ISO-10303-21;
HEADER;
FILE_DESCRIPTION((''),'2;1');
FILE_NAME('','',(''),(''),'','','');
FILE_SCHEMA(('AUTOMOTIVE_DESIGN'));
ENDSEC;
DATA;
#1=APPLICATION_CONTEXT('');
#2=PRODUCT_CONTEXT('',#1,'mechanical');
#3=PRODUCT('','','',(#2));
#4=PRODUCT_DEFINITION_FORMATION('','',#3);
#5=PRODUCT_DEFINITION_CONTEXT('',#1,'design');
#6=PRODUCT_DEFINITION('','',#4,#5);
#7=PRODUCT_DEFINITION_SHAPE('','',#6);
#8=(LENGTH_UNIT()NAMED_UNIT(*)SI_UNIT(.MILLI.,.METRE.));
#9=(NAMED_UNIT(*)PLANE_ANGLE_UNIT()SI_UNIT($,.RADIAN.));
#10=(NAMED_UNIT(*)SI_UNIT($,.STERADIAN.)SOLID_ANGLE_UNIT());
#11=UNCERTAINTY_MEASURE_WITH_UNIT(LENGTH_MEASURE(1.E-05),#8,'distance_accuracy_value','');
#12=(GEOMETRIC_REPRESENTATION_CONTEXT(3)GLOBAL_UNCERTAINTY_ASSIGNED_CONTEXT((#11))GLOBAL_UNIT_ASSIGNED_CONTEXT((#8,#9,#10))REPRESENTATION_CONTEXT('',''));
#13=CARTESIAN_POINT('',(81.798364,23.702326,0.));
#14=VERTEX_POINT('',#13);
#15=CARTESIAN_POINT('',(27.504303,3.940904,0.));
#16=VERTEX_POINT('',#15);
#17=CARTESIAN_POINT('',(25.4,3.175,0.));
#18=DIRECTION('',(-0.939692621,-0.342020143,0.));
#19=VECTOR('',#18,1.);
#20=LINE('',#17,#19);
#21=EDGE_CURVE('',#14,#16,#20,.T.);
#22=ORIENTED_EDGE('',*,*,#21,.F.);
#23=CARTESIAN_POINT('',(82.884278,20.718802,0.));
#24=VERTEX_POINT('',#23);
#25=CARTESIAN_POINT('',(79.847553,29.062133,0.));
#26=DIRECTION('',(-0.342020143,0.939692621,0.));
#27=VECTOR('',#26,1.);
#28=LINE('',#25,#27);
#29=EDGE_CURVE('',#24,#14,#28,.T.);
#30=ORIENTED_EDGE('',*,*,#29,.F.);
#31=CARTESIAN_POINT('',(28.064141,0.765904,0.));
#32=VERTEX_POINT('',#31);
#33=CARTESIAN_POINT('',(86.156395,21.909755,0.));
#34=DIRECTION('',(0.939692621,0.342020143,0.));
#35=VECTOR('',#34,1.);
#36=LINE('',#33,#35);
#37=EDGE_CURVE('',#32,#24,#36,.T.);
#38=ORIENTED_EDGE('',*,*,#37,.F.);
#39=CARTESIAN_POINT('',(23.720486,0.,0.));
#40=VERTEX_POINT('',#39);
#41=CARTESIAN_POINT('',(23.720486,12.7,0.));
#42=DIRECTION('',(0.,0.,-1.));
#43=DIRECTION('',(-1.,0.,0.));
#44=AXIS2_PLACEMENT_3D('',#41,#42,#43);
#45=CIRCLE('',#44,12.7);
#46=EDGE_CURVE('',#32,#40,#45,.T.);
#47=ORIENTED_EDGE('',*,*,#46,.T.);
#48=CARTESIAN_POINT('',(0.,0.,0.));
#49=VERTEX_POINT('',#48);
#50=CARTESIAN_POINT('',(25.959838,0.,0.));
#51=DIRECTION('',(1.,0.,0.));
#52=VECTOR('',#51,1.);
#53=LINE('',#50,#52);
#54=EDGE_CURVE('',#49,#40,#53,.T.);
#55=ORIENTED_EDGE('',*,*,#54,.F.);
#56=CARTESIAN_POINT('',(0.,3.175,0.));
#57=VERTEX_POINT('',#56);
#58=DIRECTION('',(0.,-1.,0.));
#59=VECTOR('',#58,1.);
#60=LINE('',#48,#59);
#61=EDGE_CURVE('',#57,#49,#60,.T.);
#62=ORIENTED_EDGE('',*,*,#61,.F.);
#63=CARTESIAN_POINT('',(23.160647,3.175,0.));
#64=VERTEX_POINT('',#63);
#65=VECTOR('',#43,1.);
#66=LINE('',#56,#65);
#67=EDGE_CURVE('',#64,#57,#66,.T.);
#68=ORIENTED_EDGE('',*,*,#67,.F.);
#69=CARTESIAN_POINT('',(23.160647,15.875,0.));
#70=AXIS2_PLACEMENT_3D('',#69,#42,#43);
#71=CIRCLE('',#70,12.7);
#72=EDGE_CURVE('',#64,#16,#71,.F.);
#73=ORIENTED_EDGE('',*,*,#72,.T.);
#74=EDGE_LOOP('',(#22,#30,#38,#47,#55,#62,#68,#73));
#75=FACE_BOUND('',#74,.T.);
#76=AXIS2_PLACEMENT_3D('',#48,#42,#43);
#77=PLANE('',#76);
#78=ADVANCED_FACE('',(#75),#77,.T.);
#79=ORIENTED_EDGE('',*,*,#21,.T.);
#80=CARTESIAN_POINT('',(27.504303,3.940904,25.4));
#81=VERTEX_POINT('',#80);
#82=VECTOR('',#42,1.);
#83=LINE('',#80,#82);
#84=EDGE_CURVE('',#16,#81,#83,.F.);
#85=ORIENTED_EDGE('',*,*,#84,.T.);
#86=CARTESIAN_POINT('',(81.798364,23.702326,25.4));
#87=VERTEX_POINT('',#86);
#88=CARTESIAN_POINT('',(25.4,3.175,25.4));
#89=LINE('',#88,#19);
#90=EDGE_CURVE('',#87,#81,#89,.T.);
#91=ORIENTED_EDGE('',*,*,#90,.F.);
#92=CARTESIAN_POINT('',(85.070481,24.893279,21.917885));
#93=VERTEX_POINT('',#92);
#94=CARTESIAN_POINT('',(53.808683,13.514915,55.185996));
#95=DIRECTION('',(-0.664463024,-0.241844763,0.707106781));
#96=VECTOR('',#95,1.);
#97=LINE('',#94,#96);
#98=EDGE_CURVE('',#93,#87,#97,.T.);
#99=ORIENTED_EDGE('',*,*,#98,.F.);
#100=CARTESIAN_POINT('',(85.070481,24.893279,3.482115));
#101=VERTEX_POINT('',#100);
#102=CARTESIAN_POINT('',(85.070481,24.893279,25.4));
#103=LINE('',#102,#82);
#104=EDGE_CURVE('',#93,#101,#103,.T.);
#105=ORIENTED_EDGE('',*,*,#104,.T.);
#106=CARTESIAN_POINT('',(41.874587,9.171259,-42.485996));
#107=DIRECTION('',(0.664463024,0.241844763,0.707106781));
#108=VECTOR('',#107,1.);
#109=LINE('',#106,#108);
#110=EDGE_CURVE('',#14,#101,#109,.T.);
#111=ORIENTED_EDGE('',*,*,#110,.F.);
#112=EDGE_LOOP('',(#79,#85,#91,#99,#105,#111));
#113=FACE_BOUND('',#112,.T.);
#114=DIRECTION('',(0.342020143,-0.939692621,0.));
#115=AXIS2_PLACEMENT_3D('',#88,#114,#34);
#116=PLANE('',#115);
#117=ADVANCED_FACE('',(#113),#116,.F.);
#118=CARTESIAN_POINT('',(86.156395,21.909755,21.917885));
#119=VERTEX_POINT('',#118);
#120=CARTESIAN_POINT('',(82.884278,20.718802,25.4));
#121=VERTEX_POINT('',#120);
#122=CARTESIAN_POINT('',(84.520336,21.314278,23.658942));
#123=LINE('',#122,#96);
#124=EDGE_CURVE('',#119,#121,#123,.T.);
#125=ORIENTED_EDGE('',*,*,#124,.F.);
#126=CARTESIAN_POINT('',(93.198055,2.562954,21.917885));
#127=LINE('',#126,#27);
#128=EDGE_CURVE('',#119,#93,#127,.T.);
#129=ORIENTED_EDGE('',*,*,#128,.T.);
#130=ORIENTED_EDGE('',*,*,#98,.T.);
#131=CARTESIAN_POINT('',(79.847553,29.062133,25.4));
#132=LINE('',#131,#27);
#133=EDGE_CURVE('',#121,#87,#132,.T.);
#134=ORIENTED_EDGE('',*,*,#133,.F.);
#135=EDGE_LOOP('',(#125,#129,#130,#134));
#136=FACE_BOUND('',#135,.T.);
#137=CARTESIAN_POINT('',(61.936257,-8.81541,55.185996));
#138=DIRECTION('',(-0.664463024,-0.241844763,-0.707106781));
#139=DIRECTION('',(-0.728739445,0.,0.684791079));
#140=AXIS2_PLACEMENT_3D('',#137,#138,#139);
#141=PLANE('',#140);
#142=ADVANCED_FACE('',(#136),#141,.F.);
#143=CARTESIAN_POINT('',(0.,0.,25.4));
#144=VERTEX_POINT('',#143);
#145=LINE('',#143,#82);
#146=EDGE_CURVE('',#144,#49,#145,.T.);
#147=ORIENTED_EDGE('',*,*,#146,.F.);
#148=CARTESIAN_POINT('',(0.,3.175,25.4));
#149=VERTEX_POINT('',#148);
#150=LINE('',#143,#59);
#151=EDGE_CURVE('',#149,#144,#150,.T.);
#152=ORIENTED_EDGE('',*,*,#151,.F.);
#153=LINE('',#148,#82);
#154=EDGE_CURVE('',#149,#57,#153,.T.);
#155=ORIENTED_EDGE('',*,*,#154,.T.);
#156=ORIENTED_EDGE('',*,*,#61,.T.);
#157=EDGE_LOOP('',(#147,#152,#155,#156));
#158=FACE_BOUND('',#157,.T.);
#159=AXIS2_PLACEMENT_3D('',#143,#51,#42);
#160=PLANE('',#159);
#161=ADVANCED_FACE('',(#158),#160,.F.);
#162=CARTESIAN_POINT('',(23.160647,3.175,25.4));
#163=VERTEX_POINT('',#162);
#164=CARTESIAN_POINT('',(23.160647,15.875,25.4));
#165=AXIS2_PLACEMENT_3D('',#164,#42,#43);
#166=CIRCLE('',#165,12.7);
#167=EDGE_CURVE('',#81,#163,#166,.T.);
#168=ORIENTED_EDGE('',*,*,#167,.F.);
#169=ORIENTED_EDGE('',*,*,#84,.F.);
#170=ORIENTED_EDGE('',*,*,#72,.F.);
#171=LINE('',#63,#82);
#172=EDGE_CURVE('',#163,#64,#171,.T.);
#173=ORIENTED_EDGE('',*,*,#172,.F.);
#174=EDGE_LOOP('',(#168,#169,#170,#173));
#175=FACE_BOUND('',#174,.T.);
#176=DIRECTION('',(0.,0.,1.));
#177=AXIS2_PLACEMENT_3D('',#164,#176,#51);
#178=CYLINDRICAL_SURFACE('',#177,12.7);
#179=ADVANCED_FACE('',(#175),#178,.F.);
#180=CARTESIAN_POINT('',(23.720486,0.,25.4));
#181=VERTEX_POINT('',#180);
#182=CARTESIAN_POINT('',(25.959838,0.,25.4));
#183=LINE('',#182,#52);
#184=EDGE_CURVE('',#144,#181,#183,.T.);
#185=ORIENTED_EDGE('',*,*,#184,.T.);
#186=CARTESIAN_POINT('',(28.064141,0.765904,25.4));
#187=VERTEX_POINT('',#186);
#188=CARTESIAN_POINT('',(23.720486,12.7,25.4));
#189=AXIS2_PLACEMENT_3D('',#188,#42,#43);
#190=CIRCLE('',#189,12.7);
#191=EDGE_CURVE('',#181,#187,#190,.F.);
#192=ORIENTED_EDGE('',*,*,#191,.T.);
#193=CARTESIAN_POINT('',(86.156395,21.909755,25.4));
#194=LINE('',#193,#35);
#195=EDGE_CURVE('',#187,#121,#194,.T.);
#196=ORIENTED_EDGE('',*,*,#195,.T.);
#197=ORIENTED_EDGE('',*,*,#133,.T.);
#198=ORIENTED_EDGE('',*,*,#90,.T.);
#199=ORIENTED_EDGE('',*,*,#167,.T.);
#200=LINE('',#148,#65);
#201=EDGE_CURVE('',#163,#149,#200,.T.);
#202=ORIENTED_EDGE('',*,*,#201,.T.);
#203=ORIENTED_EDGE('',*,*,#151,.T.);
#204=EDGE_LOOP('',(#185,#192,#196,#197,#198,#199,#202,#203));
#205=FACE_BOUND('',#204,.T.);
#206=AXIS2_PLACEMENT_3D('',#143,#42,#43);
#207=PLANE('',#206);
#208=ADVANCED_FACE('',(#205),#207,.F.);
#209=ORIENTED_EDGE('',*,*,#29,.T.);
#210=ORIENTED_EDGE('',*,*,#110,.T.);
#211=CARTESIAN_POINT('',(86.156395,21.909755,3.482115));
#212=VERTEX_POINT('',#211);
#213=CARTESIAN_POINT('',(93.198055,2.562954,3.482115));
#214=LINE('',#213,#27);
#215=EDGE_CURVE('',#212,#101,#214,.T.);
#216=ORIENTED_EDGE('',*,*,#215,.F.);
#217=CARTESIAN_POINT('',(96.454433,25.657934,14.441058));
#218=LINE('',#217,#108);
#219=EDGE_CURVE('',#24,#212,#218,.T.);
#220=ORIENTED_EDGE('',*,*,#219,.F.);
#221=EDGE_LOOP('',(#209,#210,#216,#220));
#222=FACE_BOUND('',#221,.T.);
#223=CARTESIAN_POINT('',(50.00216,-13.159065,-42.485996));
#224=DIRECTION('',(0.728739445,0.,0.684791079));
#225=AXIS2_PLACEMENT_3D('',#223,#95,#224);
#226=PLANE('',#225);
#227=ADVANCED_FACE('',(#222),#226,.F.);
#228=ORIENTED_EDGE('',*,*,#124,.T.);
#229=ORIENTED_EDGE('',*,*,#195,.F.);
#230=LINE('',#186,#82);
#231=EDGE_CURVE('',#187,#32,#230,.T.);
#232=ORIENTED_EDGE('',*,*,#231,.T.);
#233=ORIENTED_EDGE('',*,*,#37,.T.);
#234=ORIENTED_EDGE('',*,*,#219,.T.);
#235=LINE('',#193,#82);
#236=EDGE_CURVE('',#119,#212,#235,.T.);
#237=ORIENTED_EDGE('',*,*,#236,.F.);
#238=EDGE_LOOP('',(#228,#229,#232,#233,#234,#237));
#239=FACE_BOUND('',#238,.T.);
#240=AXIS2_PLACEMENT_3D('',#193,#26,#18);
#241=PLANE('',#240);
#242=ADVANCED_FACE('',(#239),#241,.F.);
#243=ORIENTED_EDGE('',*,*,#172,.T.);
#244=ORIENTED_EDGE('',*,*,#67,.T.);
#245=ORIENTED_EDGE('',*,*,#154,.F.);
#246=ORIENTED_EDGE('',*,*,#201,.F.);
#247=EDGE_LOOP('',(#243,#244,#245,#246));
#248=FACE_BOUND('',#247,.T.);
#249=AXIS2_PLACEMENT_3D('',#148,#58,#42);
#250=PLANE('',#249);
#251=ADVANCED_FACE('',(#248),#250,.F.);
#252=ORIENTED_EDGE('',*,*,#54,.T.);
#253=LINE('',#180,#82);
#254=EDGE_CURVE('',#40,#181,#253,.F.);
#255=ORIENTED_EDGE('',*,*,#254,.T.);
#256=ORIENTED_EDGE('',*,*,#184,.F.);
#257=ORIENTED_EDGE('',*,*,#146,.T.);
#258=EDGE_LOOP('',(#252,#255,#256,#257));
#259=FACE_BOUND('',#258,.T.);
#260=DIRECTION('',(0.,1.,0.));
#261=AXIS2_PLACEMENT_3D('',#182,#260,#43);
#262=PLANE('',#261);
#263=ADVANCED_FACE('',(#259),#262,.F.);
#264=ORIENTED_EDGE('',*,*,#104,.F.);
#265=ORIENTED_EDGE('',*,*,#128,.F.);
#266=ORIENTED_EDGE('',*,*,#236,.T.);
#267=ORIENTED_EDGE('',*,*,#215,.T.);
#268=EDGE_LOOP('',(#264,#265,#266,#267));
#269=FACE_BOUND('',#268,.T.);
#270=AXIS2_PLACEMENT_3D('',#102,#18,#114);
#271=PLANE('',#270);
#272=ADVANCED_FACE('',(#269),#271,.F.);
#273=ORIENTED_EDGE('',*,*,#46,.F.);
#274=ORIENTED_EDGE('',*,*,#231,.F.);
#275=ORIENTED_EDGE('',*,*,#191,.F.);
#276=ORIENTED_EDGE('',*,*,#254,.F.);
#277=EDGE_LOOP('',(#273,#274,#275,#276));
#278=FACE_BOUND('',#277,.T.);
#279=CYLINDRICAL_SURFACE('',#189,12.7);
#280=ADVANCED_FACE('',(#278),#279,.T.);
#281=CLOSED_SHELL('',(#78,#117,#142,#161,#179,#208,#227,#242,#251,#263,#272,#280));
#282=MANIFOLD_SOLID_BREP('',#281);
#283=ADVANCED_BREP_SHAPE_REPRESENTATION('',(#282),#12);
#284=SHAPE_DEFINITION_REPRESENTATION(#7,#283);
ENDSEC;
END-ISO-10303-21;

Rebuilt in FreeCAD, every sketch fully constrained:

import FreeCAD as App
import Part
import Sketcher
Q = App.Units.Quantity


def edges_at(feature, points):
    """Names of the edges that pass closest to the given points."""
    edges = feature.Shape.Edges
    near = lambda p: min(range(len(edges)), key=lambda i: edges[i].distToShape(Part.Vertex(*p))[0])
    return sorted({f"Edge{near(p) + 1}" for p in points})


def add_polygon(sketch, points):
    """Adds a closed chain of lines whose ends are joined by coincident constraints."""
    first, n = sketch.GeometryCount, len(points)
    for a, b in zip(points, points[1:] + points[:1]):
        sketch.addGeometry(Part.LineSegment(App.Vector(*a, 0), App.Vector(*b, 0)), False)
    for i in range(n):
        sketch.addConstraint(Sketcher.Constraint("Coincident", first + i, 2, first + (i + 1) % n, 1))

doc = App.newDocument("Part")
params = doc.addObject("Spreadsheet::Sheet", "Params")
for row, (alias, value) in enumerate([
    ("sketch1_width", "1 in"),
    ("sketch1_length", "2.5 in"),
    ("sketch1_height", "0.125 in"),
    ("sketch1_length2", "0.125 in"),
    ("pad1_length", "1 in"),
    ("fillet_radius", "0.5 in"),
], start=1):
    params.set(f"A{row}", alias)
    params.set(f"B{row}", "=" + value)
    params.setAlias(f"B{row}", alias)

body = doc.addObject("PartDesign::Body", "Body")

# Sketch on XY plane
sketch1 = doc.addObject("Sketcher::SketchObject", "Sketch")
body.addObject(sketch1)
sketch1.AttachmentSupport = (doc.XY_Plane, [""])
sketch1.MapMode = "FlatFace"
add_polygon(sketch1, [(0, 3.2), (0, 0), (26, 0), (86.2, 21.9), (85.1, 24.9), (25.4, 3.2)])  # lines 0-5
sketch1.addConstraint([
    Sketcher.Constraint("Vertical", 0),
    Sketcher.Constraint("Horizontal", 1),
    Sketcher.Constraint("Horizontal", 5),
    Sketcher.Constraint("Coincident", 0, 2, -1, 1),
    Sketcher.Constraint("Perpendicular", 2, 3),
    Sketcher.Constraint("Perpendicular", 3, 4),
    Sketcher.Constraint("DistanceX", 5, 2, 5, 1, Q("1 in")),
    Sketcher.Constraint("Angle", 2, Q("20 deg")),
    Sketcher.Constraint("Distance", 4, Q("2.5 in")),
    Sketcher.Constraint("DistanceY", 0, 2, 0, 1, Q("0.125 in")),
    Sketcher.Constraint("Distance", 3, Q("0.125 in")),
])
sketch1.setExpression("Constraints[12]", "Params.sketch1_width")
sketch1.setExpression("Constraints[14]", "Params.sketch1_length")
sketch1.setExpression("Constraints[15]", "Params.sketch1_height")
sketch1.setExpression("Constraints[16]", "Params.sketch1_length2")
pad1 = doc.addObject("PartDesign::Pad", "Pad")
body.addObject(pad1)
pad1.Profile = sketch1
pad1.setExpression("Length", "Params.pad1_length")
doc.recompute()

fillet = doc.addObject("PartDesign::Fillet", "Fillet")
body.addObject(fillet)
fillet.Base = (pad1, edges_at(pad1, [(25.4, 3.175, 12.7), (25.96, 0, 12.7)]))
fillet.setExpression("Radius", "Params.fillet_radius")

# Sketch on an angled plane
sketch2 = doc.addObject("Sketcher::SketchObject", "Sketch001")
body.addObject(sketch2)
sketch2.Placement = App.Placement(App.Vector(1.95081, -5.359807, 0), App.Rotation(App.Vector(0.939692621, 0.342020143, 0), App.Vector(0, 0, -1), App.Vector(-0.342020143, 0.939692621, 0), "ZXY"))
add_polygon(sketch2, [(88.5, 0), (85, 0), (88.5, -3.5)])  # lines 0-2
add_polygon(sketch2, [(88.5, -25.4), (88.5, -21.9), (85, -25.4)])  # lines 3-5
sketch2.addConstraint([
    Sketcher.Constraint("Horizontal", 0),
    Sketcher.Constraint("Vertical", 2),
    Sketcher.Constraint("Vertical", 3),
    Sketcher.Constraint("Horizontal", 5),
    Sketcher.Constraint("PointOnObject", 0, 2, -1),
    Sketcher.Constraint("Perpendicular", 1, 4),
    Sketcher.Constraint("Vertical", 2, 2, 3, 2),
    Sketcher.Constraint("Vertical", 0, 2, 4, 2),
    Sketcher.Constraint("Equal", 5, 2),
    Sketcher.Constraint("DistanceY", 4, 2, -1, 1, Q("1 in")),
    Sketcher.Constraint("DistanceX", 0, 2, 0, 1, 3.482115),
    Sketcher.Constraint("DistanceX", -1, 1, 0, 2, 84.971991),
])
pocket1 = doc.addObject("PartDesign::Pocket", "Pocket")
body.addObject(pocket1)
pocket1.Profile = sketch2
pocket1.Type = "ThroughAll"

doc.recompute()
